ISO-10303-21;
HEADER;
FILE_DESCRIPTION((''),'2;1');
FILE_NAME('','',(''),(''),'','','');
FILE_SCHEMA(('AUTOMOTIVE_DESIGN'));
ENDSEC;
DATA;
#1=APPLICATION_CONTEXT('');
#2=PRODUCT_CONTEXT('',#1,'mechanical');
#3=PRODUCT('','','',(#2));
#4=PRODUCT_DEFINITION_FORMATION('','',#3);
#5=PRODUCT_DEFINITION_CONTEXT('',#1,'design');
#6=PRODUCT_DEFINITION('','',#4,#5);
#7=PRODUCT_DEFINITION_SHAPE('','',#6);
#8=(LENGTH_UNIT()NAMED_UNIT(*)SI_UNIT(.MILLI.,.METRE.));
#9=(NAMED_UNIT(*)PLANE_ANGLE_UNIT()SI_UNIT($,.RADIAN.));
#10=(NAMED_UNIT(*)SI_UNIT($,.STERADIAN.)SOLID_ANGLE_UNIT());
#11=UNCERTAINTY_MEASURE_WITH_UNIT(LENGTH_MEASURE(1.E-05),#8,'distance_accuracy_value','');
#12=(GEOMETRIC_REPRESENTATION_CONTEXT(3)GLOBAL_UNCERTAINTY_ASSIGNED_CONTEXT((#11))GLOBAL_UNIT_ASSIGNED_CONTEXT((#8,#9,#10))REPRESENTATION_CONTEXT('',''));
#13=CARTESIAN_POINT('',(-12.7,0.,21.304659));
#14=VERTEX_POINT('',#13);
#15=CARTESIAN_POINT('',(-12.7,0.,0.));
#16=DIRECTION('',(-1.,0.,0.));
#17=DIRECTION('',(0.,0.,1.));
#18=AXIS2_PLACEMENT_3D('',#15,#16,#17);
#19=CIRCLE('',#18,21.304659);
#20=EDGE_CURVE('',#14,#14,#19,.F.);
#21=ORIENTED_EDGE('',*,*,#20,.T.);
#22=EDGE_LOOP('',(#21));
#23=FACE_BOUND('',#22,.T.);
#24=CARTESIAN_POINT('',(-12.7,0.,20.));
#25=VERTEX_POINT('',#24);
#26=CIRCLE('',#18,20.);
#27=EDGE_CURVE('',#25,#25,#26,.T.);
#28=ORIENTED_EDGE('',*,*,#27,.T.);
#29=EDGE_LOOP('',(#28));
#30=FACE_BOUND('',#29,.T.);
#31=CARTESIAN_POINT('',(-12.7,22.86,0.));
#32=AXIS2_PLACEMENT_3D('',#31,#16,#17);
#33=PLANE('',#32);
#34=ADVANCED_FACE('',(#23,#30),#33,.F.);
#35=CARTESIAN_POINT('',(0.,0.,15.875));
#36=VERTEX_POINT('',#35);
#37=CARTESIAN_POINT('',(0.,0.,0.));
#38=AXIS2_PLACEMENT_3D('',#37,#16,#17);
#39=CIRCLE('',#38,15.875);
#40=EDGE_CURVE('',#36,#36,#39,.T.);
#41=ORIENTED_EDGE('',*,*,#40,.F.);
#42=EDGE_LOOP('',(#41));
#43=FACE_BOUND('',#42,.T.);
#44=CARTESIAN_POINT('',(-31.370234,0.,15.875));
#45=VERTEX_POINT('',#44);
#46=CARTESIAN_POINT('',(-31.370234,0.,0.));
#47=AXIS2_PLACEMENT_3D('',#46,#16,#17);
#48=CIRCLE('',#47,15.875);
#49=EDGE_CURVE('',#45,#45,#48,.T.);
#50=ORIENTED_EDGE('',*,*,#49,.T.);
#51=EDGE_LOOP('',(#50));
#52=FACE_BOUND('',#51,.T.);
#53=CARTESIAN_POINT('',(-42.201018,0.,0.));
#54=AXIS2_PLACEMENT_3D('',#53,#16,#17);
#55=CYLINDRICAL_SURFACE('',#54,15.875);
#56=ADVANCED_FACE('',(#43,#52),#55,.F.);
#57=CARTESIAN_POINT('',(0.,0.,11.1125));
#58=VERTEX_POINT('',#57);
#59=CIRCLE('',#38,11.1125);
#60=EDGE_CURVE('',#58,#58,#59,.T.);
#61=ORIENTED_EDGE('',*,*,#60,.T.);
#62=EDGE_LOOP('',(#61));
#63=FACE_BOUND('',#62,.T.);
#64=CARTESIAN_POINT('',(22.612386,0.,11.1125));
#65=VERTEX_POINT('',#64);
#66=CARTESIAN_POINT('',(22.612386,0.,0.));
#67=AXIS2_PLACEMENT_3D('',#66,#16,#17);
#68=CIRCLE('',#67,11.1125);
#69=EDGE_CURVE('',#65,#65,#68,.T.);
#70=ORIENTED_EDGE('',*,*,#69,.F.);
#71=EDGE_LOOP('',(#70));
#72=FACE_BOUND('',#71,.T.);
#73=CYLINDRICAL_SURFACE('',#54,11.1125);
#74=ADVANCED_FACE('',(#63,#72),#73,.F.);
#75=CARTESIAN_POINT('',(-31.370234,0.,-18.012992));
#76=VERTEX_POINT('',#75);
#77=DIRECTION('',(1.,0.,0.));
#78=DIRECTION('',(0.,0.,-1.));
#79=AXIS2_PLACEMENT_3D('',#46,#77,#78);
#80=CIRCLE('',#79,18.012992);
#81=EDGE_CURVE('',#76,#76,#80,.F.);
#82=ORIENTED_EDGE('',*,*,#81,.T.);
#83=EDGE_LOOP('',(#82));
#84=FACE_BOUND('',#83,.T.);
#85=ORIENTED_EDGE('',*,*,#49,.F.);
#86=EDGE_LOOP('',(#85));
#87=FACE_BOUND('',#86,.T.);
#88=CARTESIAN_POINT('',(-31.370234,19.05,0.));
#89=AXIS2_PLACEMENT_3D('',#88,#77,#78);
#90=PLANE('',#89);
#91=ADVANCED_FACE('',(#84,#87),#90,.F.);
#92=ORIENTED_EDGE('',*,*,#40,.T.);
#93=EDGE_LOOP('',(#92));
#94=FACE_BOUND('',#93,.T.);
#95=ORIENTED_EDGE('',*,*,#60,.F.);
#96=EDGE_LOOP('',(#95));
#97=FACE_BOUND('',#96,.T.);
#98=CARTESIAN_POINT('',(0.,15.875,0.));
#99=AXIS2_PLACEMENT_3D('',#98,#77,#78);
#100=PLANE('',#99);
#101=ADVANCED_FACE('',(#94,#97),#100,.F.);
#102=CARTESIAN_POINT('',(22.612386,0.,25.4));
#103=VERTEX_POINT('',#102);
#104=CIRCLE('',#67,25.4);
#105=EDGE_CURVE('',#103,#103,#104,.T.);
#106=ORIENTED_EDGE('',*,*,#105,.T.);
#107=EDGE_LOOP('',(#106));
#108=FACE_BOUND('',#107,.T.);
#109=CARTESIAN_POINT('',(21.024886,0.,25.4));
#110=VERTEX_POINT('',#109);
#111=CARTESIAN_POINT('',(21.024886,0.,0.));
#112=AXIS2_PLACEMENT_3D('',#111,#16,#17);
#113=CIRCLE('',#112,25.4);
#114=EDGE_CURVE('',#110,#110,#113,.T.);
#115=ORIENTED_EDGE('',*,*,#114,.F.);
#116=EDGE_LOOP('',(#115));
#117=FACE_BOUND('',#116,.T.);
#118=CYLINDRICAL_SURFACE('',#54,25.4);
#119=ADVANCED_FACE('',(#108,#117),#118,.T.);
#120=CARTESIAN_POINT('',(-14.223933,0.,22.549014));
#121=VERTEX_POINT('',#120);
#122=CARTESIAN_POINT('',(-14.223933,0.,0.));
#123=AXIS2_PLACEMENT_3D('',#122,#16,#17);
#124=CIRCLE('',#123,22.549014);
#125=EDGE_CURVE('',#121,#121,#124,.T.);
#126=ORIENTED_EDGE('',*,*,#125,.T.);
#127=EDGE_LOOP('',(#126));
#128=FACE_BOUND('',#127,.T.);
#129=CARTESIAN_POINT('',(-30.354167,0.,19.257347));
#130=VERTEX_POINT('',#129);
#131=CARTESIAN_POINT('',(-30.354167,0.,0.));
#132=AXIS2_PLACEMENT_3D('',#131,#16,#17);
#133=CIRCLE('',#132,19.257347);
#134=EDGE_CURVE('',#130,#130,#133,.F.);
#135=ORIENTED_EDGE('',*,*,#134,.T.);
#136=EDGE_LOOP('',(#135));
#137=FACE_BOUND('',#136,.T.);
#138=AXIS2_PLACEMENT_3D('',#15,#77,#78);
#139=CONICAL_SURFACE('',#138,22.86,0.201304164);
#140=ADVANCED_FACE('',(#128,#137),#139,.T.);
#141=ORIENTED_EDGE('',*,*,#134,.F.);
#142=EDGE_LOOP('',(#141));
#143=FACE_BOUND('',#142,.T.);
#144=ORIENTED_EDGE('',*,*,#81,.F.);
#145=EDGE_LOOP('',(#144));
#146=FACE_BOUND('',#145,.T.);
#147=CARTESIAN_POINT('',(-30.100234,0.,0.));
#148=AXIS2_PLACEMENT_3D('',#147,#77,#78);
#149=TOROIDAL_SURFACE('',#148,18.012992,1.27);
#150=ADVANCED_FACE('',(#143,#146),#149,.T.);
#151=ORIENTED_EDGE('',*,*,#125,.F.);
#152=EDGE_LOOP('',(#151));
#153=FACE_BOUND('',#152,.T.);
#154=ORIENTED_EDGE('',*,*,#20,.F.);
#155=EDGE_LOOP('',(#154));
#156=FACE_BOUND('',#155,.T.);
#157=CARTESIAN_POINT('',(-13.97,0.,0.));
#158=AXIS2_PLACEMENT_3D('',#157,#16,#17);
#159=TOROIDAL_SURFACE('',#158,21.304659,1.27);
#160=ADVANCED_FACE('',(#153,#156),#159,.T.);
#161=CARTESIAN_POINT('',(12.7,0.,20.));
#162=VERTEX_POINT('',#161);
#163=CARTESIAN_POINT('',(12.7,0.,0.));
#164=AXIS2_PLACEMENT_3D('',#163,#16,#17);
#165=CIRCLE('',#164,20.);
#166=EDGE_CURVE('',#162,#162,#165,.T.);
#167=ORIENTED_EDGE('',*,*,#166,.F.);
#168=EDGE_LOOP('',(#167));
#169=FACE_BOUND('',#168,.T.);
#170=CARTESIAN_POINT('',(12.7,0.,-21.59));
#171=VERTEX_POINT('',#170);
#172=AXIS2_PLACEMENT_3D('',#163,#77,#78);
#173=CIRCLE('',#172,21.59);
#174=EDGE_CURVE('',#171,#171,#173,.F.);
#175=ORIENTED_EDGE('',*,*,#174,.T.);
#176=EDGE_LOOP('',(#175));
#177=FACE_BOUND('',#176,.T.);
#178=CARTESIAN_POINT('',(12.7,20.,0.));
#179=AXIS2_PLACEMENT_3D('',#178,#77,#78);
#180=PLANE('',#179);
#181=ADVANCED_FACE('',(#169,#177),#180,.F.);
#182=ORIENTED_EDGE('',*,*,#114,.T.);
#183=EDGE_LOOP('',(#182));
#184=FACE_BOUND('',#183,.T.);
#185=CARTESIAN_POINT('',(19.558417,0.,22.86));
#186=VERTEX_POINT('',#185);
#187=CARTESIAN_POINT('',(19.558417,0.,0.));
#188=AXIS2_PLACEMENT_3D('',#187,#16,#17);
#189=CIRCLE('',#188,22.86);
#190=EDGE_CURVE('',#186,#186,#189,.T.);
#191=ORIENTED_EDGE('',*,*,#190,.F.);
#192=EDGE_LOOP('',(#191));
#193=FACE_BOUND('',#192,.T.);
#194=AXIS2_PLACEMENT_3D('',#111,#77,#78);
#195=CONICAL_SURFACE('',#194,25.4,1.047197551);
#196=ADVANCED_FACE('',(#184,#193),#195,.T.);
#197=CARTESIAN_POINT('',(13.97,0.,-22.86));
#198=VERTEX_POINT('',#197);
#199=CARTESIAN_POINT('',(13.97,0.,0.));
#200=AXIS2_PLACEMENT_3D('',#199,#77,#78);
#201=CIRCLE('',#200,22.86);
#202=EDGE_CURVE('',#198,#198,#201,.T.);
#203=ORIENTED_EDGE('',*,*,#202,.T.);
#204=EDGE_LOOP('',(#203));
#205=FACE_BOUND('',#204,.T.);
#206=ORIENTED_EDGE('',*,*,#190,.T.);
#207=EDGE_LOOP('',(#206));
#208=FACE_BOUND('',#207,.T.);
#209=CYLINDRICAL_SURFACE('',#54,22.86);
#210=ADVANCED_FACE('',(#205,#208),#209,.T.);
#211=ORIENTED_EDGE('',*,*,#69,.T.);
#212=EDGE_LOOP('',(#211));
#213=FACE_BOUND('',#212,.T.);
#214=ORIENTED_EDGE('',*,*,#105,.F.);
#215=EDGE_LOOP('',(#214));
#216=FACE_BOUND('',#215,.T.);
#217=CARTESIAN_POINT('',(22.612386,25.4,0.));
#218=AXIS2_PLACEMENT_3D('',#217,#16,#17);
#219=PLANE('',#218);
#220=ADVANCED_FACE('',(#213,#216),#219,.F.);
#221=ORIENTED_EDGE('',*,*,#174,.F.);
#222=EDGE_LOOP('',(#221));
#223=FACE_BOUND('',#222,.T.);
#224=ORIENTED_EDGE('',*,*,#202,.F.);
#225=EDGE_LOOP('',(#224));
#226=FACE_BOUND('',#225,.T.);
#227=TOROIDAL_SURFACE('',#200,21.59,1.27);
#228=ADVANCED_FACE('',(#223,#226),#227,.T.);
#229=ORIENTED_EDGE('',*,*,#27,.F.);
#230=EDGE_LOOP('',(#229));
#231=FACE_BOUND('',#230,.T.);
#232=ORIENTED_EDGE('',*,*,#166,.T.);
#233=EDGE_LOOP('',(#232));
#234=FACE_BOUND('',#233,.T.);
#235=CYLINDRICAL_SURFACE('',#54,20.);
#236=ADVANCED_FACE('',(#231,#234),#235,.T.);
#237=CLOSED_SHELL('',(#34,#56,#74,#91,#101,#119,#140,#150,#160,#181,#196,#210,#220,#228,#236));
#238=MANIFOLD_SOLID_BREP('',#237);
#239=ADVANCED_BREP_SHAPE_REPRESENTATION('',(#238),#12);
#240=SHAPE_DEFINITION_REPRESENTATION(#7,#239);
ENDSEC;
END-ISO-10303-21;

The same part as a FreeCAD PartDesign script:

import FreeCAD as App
import Part
import Sketcher

V = App.Vector
Q = App.Units.Quantity


def edges_at(feature, points):
    """Names of the edges that pass closest to the given points."""
    edges = feature.Shape.Edges
    near = lambda p: min(range(len(edges)), key=lambda i: edges[i].distToShape(Part.Vertex(*p))[0])
    return sorted({f"Edge{near(p) + 1}" for p in points})


def add_polygon(sketch, points):
    """Adds a closed chain of lines whose ends are joined by coincident constraints."""
    first, n = sketch.GeometryCount, len(points)
    for a, b in zip(points, points[1:] + points[:1]):
        sketch.addGeometry(Part.LineSegment(App.Vector(*a, 0), App.Vector(*b, 0)), False)
    for i in range(n):
        sketch.addConstraint(Sketcher.Constraint("Coincident", first + i, 2, first + (i + 1) % n, 1))

doc = App.newDocument("Part")
params = doc.addObject("Spreadsheet::Sheet", "Params")
for row, (alias, value) in enumerate([
    ("sketch1_width", "1 in"),
    ("sketch1_width2", "0.0625 in"),
    ("sketch1_height", "0.5625 in"),
    ("sketch1_height2", "0.125 in"),
    ("sketch1_height3", "0.1875 in"),
    ("revolution_angle", "360 deg"),
    ("fillet_radius", "0.05 in"),
], start=1):
    params.set(f"A{row}", alias)
    params.set(f"B{row}", "=" + value)
    params.setAlias(f"B{row}", alias)

body = doc.addObject("PartDesign::Body", "Body")

# Sketch on XY plane
sketch1 = body.newObject("Sketcher::SketchObject", "Sketch")
sketch1.AttachmentSupport = (doc.getObject("XY_Plane"), [""])
sketch1.MapMode = "FlatFace"
add_polygon(sketch1, [(0, 11.1), (22.6, 11.1), (22.6, 25.4), (21, 25.4), (19.6, 22.9), (12.7, 22.9), (12.7, 20), (-12.7, 20), (-12.7, 22.9), (-31.4, 19.1), (-31.4, 15.9), (0, 15.9)])  # lines 0-11
sketch1.addConstraint(Sketcher.Constraint("Horizontal", 0))
sketch1.addConstraint(Sketcher.Constraint("Vertical", 1))
sketch1.addConstraint(Sketcher.Constraint("Horizontal", 2))
sketch1.addConstraint(Sketcher.Constraint("Horizontal", 4))
sketch1.addConstraint(Sketcher.Constraint("Vertical", 5))
sketch1.addConstraint(Sketcher.Constraint("Horizontal", 6))
sketch1.addConstraint(Sketcher.Constraint("Vertical", 7))
sketch1.addConstraint(Sketcher.Constraint("Vertical", 9))
sketch1.addConstraint(Sketcher.Constraint("Horizontal", 10))
sketch1.addConstraint(Sketcher.Constraint("Vertical", 11))
sketch1.addConstraint(Sketcher.Constraint("Symmetric", 4, 2, 7, 2, -2))
sketch1.addConstraint(Sketcher.Constraint("PointOnObject", 10, 2, -2))
sketch1.addConstraint(Sketcher.Constraint("DistanceX", 6, 2, 6, 1, Q("1 in")))
sketch1.addConstraint(Sketcher.Constraint("DistanceY", -1, 1, 1, 2, Q("1 in")))
sketch1.addConstraint(Sketcher.Constraint("Angle", 3, Q("-120 deg")))
sketch1.addConstraint(Sketcher.Constraint("DistanceY", -1, 1, 3, 2, Q("0.9 in")))
sketch1.addConstraint(Sketcher.Constraint("DistanceX", 2, 2, 2, 1, Q("0.0625 in")))
sketch1.addConstraint(Sketcher.Constraint("DistanceY", 1, 1, 1, 2, Q("0.5625 in")))
sketch1.addConstraint(Sketcher.Constraint("DistanceY", 9, 2, 9, 1, Q("0.125 in")))
sketch1.addConstraint(Sketcher.Constraint("DistanceY", 11, 2, 11, 1, Q("0.1875 in")))
sketch1.addConstraint(Sketcher.Constraint("DistanceY", 5, 2, 5, 1, 2.86))
sketch1.addConstraint(Sketcher.Constraint("Distance", 8, 19.055018))
sketch1.addConstraint(Sketcher.Constraint("DistanceX", 0, 1, 0, 2, 22.612386))
sketch1.setExpression("Constraints[24]", "Params.sketch1_width")
sketch1.setExpression("Constraints[28]", "Params.sketch1_width2")
sketch1.setExpression("Constraints[29]", "Params.sketch1_height")
sketch1.setExpression("Constraints[30]", "Params.sketch1_height2")
sketch1.setExpression("Constraints[31]", "Params.sketch1_height3")
revolution = body.newObject("PartDesign::Revolution", "Revolution")
revolution.Profile = sketch1
revolution.ReferenceAxis = (sketch1, ["H_Axis"])
revolution.setExpression("Angle", "Params.revolution_angle")
doc.recompute()

fillet = body.newObject("PartDesign::Fillet", "Fillet")
fillet.Base = (revolution, edges_at(revolution, [(12.7, -22.86, 0), (-31.37, -19.05, 0), (-12.7, -22.86, 0)]))
fillet.setExpression("Radius", "Params.fillet_radius")

doc.recompute()
